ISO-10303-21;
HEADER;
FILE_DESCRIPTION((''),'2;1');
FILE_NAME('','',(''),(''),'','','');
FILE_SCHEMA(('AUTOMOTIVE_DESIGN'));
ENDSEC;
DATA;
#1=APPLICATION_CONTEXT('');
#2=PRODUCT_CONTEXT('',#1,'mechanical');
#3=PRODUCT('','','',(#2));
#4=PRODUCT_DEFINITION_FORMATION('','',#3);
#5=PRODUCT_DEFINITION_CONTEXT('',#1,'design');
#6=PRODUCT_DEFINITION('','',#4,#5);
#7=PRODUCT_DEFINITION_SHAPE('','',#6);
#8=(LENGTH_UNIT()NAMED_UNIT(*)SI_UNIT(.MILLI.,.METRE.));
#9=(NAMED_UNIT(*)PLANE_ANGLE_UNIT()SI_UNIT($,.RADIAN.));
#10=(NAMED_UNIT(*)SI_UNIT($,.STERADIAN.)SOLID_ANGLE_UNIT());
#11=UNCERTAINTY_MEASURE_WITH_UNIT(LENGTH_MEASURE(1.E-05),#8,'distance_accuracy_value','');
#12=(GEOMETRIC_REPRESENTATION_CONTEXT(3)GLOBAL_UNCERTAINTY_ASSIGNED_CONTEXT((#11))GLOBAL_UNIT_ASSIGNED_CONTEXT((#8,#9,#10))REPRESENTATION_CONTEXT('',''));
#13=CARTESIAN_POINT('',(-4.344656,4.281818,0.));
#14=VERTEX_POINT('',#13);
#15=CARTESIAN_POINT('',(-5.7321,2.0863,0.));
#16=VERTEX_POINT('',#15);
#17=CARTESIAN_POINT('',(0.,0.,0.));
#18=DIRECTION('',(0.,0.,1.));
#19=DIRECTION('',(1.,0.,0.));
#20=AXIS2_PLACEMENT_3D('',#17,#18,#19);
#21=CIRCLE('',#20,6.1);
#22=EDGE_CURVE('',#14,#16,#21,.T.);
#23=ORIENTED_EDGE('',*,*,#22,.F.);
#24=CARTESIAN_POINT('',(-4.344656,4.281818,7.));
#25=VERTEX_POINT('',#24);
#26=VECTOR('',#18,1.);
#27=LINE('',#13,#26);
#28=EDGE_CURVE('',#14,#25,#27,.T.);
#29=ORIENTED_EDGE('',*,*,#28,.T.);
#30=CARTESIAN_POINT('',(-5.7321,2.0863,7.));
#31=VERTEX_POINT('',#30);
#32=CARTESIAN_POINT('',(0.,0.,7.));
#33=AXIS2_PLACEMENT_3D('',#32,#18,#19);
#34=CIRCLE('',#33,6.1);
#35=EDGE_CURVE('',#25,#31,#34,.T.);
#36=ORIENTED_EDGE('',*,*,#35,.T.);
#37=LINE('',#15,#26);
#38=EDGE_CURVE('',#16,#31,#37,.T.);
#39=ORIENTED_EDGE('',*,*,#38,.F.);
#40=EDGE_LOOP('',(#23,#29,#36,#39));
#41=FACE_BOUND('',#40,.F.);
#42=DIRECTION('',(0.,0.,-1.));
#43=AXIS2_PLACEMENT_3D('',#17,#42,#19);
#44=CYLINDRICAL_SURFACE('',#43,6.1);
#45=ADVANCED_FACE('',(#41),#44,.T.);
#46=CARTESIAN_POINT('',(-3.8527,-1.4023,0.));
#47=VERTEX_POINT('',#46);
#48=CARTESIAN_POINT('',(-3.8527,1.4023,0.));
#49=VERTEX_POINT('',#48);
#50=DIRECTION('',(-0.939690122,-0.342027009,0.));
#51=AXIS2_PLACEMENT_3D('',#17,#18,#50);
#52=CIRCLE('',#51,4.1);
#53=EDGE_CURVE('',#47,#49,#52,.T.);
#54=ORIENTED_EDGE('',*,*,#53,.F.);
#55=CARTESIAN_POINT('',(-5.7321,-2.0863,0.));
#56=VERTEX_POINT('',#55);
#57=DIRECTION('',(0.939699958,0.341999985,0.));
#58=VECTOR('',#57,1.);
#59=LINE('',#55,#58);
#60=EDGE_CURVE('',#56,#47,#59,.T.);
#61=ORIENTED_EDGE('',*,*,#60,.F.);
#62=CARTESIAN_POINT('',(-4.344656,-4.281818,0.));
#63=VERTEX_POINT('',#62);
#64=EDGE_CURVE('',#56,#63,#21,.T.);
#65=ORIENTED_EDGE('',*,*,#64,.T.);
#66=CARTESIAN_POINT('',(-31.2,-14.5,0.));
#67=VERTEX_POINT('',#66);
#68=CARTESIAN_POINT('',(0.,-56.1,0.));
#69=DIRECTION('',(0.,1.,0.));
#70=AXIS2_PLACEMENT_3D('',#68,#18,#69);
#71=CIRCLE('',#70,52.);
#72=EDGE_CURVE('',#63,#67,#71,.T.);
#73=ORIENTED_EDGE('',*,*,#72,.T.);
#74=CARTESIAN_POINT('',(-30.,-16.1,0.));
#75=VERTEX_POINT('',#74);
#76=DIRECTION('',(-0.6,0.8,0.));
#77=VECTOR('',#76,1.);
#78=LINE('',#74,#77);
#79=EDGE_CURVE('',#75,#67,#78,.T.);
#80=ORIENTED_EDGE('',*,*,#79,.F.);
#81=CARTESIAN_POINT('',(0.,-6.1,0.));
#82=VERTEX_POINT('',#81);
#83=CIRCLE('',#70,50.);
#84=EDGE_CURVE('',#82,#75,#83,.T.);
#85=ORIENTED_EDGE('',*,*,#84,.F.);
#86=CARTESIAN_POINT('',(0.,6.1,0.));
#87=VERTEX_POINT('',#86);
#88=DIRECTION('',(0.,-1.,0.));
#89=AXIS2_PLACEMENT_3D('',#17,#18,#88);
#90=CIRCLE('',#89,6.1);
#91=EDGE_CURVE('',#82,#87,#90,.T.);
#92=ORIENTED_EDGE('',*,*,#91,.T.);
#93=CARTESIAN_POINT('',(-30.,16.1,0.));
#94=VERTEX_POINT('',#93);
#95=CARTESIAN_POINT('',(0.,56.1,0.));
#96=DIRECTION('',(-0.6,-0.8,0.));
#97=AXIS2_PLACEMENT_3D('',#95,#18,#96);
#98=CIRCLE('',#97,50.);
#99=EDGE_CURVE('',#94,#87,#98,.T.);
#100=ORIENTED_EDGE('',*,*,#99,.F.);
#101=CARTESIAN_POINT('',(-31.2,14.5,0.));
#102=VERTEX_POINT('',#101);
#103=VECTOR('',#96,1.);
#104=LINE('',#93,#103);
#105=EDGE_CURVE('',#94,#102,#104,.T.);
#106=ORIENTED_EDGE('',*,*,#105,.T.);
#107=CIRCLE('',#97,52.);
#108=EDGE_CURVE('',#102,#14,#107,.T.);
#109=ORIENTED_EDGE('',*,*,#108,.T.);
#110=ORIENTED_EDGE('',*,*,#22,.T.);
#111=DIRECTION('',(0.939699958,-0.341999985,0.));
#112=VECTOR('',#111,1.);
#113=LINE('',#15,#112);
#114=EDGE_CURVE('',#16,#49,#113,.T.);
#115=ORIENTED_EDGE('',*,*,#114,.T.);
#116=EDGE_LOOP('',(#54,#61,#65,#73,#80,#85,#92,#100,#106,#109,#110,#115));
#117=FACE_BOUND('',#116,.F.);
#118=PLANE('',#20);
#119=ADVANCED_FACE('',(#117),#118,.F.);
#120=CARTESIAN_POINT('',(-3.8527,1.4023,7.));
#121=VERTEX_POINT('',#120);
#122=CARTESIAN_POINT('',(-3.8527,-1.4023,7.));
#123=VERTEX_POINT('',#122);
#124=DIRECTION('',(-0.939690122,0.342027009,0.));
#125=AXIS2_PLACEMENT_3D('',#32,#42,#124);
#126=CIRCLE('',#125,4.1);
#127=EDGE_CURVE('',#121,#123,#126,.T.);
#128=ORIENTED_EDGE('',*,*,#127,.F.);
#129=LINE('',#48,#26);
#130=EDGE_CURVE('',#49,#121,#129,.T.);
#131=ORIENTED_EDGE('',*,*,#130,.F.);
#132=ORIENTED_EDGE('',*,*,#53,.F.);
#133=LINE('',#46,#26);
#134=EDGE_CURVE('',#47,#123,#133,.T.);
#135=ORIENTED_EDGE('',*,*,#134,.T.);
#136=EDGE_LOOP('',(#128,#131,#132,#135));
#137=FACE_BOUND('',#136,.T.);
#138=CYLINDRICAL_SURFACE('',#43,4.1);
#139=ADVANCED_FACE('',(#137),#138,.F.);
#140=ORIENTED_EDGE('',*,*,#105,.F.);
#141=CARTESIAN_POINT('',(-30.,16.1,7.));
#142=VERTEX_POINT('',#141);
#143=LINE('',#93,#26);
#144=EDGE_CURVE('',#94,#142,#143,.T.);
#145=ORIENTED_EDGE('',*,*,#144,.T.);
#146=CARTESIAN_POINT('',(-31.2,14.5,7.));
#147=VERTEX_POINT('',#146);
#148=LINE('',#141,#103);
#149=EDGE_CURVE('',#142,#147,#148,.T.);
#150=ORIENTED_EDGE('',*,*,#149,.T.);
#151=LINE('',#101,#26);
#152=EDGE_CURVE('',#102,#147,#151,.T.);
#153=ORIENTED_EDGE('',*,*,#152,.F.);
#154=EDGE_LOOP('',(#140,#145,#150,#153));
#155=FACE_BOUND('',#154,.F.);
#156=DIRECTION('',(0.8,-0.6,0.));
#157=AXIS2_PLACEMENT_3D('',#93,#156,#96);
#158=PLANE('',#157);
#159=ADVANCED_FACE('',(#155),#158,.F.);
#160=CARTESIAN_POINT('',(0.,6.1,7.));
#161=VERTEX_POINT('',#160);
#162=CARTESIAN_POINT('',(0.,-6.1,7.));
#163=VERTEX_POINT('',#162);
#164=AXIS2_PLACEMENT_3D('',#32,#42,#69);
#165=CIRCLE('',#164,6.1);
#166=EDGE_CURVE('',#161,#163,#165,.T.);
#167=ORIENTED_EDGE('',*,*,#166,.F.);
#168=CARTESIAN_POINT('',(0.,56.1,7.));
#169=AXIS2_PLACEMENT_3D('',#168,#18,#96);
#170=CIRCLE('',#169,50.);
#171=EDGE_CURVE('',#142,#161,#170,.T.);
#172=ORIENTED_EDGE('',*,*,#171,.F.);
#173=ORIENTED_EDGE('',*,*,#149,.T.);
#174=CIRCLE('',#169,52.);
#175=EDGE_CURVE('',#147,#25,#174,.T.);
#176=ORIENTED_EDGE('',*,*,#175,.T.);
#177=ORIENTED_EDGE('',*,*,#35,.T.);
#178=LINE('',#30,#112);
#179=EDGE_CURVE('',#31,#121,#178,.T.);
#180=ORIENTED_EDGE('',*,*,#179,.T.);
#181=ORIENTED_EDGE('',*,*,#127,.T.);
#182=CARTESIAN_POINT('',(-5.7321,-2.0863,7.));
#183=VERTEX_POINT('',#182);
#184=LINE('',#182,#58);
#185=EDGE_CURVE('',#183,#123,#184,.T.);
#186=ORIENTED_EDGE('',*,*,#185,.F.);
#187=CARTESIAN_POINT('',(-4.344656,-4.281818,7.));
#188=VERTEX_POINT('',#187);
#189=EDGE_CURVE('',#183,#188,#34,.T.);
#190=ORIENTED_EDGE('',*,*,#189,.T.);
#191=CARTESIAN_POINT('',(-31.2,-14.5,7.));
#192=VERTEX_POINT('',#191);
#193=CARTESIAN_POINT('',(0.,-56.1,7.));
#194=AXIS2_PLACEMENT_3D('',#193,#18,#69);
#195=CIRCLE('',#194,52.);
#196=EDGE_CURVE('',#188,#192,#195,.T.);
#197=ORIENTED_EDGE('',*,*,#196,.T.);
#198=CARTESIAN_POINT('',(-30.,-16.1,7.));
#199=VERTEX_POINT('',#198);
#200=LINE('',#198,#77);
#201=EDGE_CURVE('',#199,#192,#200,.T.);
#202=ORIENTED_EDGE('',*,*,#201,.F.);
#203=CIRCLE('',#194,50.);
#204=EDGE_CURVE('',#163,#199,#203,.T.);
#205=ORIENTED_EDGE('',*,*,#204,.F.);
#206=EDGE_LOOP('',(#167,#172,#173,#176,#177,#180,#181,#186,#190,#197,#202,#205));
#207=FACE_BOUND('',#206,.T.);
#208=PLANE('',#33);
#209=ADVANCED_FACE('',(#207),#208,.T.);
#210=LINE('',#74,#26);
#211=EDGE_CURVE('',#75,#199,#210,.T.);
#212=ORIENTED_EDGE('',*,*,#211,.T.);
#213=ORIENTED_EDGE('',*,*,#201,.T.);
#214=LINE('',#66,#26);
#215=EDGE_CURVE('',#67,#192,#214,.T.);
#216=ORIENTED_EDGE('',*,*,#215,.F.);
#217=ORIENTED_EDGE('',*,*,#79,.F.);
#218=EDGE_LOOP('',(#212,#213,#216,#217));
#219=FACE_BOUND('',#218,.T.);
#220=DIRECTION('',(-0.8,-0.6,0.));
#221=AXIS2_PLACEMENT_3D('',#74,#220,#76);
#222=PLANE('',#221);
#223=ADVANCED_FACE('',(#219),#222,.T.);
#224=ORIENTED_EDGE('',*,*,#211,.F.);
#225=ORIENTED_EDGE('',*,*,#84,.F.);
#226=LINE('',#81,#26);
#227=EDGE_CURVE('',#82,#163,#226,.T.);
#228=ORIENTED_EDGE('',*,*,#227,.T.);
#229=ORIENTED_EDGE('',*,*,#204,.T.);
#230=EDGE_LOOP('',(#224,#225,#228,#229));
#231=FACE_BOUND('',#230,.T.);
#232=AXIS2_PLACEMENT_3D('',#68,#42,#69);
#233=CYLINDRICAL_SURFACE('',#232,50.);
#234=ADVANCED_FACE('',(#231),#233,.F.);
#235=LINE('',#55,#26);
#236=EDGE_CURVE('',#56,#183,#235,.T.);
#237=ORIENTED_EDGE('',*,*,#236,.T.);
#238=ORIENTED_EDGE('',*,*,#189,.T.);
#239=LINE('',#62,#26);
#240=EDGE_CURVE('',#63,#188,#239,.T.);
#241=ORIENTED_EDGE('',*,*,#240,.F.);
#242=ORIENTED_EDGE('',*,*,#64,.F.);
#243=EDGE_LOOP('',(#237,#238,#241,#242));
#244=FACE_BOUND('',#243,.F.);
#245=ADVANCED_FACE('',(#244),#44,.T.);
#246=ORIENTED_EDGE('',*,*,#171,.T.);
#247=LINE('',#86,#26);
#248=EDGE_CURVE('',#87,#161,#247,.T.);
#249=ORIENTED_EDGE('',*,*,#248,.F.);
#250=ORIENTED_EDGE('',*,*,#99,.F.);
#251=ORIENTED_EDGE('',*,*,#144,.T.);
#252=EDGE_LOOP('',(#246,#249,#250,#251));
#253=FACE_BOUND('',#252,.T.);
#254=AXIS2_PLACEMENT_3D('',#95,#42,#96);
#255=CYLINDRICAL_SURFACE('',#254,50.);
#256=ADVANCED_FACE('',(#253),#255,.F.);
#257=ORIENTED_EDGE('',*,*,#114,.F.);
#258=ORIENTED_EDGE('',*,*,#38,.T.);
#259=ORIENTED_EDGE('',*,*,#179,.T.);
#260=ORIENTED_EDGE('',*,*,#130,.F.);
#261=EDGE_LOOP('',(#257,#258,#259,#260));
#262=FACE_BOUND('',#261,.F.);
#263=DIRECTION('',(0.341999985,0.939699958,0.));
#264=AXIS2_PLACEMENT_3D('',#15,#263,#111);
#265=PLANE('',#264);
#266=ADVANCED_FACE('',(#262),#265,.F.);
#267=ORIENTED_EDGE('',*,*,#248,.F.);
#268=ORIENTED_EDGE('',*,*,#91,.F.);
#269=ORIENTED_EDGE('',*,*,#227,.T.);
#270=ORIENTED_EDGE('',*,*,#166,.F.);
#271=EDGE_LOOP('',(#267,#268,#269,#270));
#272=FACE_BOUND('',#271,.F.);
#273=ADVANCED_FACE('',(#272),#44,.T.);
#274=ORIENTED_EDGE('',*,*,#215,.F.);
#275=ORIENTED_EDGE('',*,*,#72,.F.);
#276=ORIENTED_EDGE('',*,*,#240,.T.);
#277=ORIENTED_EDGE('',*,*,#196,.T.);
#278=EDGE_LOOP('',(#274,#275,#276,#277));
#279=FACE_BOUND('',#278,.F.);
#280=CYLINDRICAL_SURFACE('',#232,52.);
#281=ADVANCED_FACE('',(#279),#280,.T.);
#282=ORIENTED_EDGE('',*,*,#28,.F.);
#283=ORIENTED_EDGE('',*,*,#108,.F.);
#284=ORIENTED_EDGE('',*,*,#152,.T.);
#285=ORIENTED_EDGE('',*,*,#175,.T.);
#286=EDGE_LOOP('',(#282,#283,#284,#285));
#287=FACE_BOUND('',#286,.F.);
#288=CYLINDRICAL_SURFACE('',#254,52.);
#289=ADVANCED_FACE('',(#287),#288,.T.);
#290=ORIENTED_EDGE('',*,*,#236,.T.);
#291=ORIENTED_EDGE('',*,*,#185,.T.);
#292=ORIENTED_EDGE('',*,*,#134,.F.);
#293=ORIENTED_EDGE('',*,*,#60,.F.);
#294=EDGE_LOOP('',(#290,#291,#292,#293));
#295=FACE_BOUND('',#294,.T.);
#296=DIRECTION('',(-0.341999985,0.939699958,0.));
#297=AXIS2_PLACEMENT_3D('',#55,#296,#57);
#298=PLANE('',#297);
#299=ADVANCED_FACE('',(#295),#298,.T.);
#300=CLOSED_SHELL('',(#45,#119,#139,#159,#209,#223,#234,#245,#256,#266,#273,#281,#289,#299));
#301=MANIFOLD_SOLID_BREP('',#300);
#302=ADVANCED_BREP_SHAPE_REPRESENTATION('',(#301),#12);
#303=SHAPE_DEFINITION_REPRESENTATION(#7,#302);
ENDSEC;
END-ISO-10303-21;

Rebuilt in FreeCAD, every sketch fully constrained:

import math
import FreeCAD as App
import Part
import Sketcher

V = App.Vector
Q = App.Units.Quantity

doc = App.newDocument("Part")
params = doc.addObject("Spreadsheet::Sheet", "Params")
for row, (alias, value) in enumerate([
    ("sketch1_radius", "50 mm"),
    ("sketch1_radius2", "4.1 mm"),
    ("sketch1_length", "2 mm"),
    ("pad1_length", "7 mm"),
], start=1):
    params.set(f"A{row}", alias)
    params.set(f"B{row}", "=" + value)
    params.setAlias(f"B{row}", alias)

body = doc.addObject("PartDesign::Body", "Body")

# Sketch on XY plane
sketch1 = doc.addObject("Sketcher::SketchObject", "Sketch")
body.addObject(sketch1)
sketch1.AttachmentSupport = (doc.XY_Plane, [""])
sketch1.MapMode = "FlatFace"
sketch1.addGeometry(Part.ArcOfCircle(Part.Circle(V(0, 0, 0), V(0, 0, 1), 6.1), math.radians(-90), math.radians(90)), False)
sketch1.addGeometry(Part.ArcOfCircle(Part.Circle(V(0, 56.1, 0), V(0, 0, 1), 50), math.radians(-126.869898), math.radians(-90)), False)
sketch1.addGeometry(Part.LineSegment(V(-30, 16.1, 0), V(-31.2, 14.5, 0)), False)
sketch1.addGeometry(Part.ArcOfCircle(Part.Circle(V(0, 56.1, 0), V(0, 0, 1), 52), math.radians(-126.869898), math.radians(-94.792711)), False)
sketch1.addGeometry(Part.ArcOfCircle(Part.Circle(V(0, 0, 0), V(0, 0, 1), 6.1), math.radians(135.41735), math.radians(160.000122)), False)
sketch1.addGeometry(Part.LineSegment(V(-5.7321, 2.0863, 0), V(-3.8527, 1.4023, 0)), False)
sketch1.addGeometry(Part.ArcOfCircle(Part.Circle(V(0, 0, 0), V(0, 0, 1), 4.1), math.radians(-159.999581), math.radians(159.999581)), False)
sketch1.addGeometry(Part.LineSegment(V(-3.8527, -1.4023, 0), V(-5.7321, -2.0863, 0)), False)
sketch1.addGeometry(Part.ArcOfCircle(Part.Circle(V(0, 0, 0), V(0, 0, 1), 6.1), math.radians(-160.000122), math.radians(-135.41735)), False)
sketch1.addGeometry(Part.ArcOfCircle(Part.Circle(V(0, -56.1, 0), V(0, 0, 1), 52), math.radians(94.792711), math.radians(126.869898)), False)
sketch1.addGeometry(Part.LineSegment(V(-31.2, -14.5, 0), V(-30, -16.1, 0)), False)
sketch1.addGeometry(Part.ArcOfCircle(Part.Circle(V(0, -56.1, 0), V(0, 0, 1), 50), math.radians(90), math.radians(126.869898)), False)
sketch1.addConstraint(Sketcher.Constraint("Tangent", 0, 2, 1, 2))
sketch1.addConstraint(Sketcher.Constraint("Coincident", 1, 1, 2, 1))
sketch1.addConstraint(Sketcher.Constraint("Coincident", 2, 2, 3, 1))
sketch1.addConstraint(Sketcher.Constraint("Coincident", 3, 2, 4, 1))
sketch1.addConstraint(Sketcher.Constraint("Coincident", 4, 2, 5, 1))
sketch1.addConstraint(Sketcher.Constraint("Coincident", 5, 2, 6, 2))
sketch1.addConstraint(Sketcher.Constraint("Coincident", 6, 1, 7, 1))
sketch1.addConstraint(Sketcher.Constraint("Coincident", 7, 2, 8, 1))
sketch1.addConstraint(Sketcher.Constraint("Coincident", 8, 2, 9, 1))
sketch1.addConstraint(Sketcher.Constraint("Coincident", 9, 2, 10, 1))
sketch1.addConstraint(Sketcher.Constraint("Coincident", 10, 2, 11, 2))
sketch1.addConstraint(Sketcher.Constraint("Tangent", 11, 1, 0, 1))
sketch1.addConstraint(Sketcher.Constraint("Coincident", 0, 3, -1, 1))
sketch1.addConstraint(Sketcher.Constraint("Coincident", 4, 3, -1, 1))
sketch1.addConstraint(Sketcher.Constraint("Coincident", 6, 3, -1, 1))
sketch1.addConstraint(Sketcher.Constraint("Coincident", 8, 3, -1, 1))
sketch1.addConstraint(Sketcher.Constraint("Coincident", 3, 3, 1, 3))
sketch1.addConstraint(Sketcher.Constraint("Coincident", 11, 3, 9, 3))
sketch1.addConstraint(Sketcher.Constraint("Equal", 0, 4))
sketch1.addConstraint(Sketcher.Constraint("Equal", 4, 8))
sketch1.addConstraint(Sketcher.Constraint("Equal", 3, 9))
sketch1.addConstraint(Sketcher.Constraint("Equal", 1, 11))
sketch1.addConstraint(Sketcher.Constraint("Symmetric", 2, 2, 9, 2, -1))
sketch1.addConstraint(Sketcher.Constraint("PointOnObject", 1, 3, -2))
sketch1.addConstraint(Sketcher.Constraint("Vertical", 5, 2, 6, 1))
sketch1.addConstraint(Sketcher.Constraint("Vertical", 4, 2, 7, 2))
sketch1.addConstraint(Sketcher.Constraint("Vertical", 1, 1, 10, 2))
sketch1.addConstraint(Sketcher.Constraint("Equal", 2, 5))
sketch1.addConstraint(Sketcher.Constraint("Radius", 1, Q("50 mm")))
sketch1.addConstraint(Sketcher.Constraint("Radius", 6, Q("4.1 mm")))
sketch1.addConstraint(Sketcher.Constraint("Distance", 2, Q("2 mm")))
sketch1.addConstraint(Sketcher.Constraint("DistanceX", 1, 1, -1, 1, Q("30 mm")))
sketch1.addConstraint(Sketcher.Constraint("DistanceY", 9, 2, 2, 2, Q("29 mm")))
sketch1.addConstraint(Sketcher.Constraint("DistanceX", 7, 2, -1, 1, Q("5.732 mm")))
sketch1.addConstraint(Sketcher.Constraint("DistanceY", 5, 2, 4, 2, Q("0.684 mm")))
sketch1.setExpression("Constraints[28]", "Params.sketch1_radius")
sketch1.setExpression("Constraints[29]", "Params.sketch1_radius2")
sketch1.setExpression("Constraints[30]", "Params.sketch1_length")
pad1 = doc.addObject("PartDesign::Pad", "Pad")
body.addObject(pad1)
pad1.Profile = sketch1
pad1.setExpression("Length", "Params.pad1_length")

doc.recompute()
